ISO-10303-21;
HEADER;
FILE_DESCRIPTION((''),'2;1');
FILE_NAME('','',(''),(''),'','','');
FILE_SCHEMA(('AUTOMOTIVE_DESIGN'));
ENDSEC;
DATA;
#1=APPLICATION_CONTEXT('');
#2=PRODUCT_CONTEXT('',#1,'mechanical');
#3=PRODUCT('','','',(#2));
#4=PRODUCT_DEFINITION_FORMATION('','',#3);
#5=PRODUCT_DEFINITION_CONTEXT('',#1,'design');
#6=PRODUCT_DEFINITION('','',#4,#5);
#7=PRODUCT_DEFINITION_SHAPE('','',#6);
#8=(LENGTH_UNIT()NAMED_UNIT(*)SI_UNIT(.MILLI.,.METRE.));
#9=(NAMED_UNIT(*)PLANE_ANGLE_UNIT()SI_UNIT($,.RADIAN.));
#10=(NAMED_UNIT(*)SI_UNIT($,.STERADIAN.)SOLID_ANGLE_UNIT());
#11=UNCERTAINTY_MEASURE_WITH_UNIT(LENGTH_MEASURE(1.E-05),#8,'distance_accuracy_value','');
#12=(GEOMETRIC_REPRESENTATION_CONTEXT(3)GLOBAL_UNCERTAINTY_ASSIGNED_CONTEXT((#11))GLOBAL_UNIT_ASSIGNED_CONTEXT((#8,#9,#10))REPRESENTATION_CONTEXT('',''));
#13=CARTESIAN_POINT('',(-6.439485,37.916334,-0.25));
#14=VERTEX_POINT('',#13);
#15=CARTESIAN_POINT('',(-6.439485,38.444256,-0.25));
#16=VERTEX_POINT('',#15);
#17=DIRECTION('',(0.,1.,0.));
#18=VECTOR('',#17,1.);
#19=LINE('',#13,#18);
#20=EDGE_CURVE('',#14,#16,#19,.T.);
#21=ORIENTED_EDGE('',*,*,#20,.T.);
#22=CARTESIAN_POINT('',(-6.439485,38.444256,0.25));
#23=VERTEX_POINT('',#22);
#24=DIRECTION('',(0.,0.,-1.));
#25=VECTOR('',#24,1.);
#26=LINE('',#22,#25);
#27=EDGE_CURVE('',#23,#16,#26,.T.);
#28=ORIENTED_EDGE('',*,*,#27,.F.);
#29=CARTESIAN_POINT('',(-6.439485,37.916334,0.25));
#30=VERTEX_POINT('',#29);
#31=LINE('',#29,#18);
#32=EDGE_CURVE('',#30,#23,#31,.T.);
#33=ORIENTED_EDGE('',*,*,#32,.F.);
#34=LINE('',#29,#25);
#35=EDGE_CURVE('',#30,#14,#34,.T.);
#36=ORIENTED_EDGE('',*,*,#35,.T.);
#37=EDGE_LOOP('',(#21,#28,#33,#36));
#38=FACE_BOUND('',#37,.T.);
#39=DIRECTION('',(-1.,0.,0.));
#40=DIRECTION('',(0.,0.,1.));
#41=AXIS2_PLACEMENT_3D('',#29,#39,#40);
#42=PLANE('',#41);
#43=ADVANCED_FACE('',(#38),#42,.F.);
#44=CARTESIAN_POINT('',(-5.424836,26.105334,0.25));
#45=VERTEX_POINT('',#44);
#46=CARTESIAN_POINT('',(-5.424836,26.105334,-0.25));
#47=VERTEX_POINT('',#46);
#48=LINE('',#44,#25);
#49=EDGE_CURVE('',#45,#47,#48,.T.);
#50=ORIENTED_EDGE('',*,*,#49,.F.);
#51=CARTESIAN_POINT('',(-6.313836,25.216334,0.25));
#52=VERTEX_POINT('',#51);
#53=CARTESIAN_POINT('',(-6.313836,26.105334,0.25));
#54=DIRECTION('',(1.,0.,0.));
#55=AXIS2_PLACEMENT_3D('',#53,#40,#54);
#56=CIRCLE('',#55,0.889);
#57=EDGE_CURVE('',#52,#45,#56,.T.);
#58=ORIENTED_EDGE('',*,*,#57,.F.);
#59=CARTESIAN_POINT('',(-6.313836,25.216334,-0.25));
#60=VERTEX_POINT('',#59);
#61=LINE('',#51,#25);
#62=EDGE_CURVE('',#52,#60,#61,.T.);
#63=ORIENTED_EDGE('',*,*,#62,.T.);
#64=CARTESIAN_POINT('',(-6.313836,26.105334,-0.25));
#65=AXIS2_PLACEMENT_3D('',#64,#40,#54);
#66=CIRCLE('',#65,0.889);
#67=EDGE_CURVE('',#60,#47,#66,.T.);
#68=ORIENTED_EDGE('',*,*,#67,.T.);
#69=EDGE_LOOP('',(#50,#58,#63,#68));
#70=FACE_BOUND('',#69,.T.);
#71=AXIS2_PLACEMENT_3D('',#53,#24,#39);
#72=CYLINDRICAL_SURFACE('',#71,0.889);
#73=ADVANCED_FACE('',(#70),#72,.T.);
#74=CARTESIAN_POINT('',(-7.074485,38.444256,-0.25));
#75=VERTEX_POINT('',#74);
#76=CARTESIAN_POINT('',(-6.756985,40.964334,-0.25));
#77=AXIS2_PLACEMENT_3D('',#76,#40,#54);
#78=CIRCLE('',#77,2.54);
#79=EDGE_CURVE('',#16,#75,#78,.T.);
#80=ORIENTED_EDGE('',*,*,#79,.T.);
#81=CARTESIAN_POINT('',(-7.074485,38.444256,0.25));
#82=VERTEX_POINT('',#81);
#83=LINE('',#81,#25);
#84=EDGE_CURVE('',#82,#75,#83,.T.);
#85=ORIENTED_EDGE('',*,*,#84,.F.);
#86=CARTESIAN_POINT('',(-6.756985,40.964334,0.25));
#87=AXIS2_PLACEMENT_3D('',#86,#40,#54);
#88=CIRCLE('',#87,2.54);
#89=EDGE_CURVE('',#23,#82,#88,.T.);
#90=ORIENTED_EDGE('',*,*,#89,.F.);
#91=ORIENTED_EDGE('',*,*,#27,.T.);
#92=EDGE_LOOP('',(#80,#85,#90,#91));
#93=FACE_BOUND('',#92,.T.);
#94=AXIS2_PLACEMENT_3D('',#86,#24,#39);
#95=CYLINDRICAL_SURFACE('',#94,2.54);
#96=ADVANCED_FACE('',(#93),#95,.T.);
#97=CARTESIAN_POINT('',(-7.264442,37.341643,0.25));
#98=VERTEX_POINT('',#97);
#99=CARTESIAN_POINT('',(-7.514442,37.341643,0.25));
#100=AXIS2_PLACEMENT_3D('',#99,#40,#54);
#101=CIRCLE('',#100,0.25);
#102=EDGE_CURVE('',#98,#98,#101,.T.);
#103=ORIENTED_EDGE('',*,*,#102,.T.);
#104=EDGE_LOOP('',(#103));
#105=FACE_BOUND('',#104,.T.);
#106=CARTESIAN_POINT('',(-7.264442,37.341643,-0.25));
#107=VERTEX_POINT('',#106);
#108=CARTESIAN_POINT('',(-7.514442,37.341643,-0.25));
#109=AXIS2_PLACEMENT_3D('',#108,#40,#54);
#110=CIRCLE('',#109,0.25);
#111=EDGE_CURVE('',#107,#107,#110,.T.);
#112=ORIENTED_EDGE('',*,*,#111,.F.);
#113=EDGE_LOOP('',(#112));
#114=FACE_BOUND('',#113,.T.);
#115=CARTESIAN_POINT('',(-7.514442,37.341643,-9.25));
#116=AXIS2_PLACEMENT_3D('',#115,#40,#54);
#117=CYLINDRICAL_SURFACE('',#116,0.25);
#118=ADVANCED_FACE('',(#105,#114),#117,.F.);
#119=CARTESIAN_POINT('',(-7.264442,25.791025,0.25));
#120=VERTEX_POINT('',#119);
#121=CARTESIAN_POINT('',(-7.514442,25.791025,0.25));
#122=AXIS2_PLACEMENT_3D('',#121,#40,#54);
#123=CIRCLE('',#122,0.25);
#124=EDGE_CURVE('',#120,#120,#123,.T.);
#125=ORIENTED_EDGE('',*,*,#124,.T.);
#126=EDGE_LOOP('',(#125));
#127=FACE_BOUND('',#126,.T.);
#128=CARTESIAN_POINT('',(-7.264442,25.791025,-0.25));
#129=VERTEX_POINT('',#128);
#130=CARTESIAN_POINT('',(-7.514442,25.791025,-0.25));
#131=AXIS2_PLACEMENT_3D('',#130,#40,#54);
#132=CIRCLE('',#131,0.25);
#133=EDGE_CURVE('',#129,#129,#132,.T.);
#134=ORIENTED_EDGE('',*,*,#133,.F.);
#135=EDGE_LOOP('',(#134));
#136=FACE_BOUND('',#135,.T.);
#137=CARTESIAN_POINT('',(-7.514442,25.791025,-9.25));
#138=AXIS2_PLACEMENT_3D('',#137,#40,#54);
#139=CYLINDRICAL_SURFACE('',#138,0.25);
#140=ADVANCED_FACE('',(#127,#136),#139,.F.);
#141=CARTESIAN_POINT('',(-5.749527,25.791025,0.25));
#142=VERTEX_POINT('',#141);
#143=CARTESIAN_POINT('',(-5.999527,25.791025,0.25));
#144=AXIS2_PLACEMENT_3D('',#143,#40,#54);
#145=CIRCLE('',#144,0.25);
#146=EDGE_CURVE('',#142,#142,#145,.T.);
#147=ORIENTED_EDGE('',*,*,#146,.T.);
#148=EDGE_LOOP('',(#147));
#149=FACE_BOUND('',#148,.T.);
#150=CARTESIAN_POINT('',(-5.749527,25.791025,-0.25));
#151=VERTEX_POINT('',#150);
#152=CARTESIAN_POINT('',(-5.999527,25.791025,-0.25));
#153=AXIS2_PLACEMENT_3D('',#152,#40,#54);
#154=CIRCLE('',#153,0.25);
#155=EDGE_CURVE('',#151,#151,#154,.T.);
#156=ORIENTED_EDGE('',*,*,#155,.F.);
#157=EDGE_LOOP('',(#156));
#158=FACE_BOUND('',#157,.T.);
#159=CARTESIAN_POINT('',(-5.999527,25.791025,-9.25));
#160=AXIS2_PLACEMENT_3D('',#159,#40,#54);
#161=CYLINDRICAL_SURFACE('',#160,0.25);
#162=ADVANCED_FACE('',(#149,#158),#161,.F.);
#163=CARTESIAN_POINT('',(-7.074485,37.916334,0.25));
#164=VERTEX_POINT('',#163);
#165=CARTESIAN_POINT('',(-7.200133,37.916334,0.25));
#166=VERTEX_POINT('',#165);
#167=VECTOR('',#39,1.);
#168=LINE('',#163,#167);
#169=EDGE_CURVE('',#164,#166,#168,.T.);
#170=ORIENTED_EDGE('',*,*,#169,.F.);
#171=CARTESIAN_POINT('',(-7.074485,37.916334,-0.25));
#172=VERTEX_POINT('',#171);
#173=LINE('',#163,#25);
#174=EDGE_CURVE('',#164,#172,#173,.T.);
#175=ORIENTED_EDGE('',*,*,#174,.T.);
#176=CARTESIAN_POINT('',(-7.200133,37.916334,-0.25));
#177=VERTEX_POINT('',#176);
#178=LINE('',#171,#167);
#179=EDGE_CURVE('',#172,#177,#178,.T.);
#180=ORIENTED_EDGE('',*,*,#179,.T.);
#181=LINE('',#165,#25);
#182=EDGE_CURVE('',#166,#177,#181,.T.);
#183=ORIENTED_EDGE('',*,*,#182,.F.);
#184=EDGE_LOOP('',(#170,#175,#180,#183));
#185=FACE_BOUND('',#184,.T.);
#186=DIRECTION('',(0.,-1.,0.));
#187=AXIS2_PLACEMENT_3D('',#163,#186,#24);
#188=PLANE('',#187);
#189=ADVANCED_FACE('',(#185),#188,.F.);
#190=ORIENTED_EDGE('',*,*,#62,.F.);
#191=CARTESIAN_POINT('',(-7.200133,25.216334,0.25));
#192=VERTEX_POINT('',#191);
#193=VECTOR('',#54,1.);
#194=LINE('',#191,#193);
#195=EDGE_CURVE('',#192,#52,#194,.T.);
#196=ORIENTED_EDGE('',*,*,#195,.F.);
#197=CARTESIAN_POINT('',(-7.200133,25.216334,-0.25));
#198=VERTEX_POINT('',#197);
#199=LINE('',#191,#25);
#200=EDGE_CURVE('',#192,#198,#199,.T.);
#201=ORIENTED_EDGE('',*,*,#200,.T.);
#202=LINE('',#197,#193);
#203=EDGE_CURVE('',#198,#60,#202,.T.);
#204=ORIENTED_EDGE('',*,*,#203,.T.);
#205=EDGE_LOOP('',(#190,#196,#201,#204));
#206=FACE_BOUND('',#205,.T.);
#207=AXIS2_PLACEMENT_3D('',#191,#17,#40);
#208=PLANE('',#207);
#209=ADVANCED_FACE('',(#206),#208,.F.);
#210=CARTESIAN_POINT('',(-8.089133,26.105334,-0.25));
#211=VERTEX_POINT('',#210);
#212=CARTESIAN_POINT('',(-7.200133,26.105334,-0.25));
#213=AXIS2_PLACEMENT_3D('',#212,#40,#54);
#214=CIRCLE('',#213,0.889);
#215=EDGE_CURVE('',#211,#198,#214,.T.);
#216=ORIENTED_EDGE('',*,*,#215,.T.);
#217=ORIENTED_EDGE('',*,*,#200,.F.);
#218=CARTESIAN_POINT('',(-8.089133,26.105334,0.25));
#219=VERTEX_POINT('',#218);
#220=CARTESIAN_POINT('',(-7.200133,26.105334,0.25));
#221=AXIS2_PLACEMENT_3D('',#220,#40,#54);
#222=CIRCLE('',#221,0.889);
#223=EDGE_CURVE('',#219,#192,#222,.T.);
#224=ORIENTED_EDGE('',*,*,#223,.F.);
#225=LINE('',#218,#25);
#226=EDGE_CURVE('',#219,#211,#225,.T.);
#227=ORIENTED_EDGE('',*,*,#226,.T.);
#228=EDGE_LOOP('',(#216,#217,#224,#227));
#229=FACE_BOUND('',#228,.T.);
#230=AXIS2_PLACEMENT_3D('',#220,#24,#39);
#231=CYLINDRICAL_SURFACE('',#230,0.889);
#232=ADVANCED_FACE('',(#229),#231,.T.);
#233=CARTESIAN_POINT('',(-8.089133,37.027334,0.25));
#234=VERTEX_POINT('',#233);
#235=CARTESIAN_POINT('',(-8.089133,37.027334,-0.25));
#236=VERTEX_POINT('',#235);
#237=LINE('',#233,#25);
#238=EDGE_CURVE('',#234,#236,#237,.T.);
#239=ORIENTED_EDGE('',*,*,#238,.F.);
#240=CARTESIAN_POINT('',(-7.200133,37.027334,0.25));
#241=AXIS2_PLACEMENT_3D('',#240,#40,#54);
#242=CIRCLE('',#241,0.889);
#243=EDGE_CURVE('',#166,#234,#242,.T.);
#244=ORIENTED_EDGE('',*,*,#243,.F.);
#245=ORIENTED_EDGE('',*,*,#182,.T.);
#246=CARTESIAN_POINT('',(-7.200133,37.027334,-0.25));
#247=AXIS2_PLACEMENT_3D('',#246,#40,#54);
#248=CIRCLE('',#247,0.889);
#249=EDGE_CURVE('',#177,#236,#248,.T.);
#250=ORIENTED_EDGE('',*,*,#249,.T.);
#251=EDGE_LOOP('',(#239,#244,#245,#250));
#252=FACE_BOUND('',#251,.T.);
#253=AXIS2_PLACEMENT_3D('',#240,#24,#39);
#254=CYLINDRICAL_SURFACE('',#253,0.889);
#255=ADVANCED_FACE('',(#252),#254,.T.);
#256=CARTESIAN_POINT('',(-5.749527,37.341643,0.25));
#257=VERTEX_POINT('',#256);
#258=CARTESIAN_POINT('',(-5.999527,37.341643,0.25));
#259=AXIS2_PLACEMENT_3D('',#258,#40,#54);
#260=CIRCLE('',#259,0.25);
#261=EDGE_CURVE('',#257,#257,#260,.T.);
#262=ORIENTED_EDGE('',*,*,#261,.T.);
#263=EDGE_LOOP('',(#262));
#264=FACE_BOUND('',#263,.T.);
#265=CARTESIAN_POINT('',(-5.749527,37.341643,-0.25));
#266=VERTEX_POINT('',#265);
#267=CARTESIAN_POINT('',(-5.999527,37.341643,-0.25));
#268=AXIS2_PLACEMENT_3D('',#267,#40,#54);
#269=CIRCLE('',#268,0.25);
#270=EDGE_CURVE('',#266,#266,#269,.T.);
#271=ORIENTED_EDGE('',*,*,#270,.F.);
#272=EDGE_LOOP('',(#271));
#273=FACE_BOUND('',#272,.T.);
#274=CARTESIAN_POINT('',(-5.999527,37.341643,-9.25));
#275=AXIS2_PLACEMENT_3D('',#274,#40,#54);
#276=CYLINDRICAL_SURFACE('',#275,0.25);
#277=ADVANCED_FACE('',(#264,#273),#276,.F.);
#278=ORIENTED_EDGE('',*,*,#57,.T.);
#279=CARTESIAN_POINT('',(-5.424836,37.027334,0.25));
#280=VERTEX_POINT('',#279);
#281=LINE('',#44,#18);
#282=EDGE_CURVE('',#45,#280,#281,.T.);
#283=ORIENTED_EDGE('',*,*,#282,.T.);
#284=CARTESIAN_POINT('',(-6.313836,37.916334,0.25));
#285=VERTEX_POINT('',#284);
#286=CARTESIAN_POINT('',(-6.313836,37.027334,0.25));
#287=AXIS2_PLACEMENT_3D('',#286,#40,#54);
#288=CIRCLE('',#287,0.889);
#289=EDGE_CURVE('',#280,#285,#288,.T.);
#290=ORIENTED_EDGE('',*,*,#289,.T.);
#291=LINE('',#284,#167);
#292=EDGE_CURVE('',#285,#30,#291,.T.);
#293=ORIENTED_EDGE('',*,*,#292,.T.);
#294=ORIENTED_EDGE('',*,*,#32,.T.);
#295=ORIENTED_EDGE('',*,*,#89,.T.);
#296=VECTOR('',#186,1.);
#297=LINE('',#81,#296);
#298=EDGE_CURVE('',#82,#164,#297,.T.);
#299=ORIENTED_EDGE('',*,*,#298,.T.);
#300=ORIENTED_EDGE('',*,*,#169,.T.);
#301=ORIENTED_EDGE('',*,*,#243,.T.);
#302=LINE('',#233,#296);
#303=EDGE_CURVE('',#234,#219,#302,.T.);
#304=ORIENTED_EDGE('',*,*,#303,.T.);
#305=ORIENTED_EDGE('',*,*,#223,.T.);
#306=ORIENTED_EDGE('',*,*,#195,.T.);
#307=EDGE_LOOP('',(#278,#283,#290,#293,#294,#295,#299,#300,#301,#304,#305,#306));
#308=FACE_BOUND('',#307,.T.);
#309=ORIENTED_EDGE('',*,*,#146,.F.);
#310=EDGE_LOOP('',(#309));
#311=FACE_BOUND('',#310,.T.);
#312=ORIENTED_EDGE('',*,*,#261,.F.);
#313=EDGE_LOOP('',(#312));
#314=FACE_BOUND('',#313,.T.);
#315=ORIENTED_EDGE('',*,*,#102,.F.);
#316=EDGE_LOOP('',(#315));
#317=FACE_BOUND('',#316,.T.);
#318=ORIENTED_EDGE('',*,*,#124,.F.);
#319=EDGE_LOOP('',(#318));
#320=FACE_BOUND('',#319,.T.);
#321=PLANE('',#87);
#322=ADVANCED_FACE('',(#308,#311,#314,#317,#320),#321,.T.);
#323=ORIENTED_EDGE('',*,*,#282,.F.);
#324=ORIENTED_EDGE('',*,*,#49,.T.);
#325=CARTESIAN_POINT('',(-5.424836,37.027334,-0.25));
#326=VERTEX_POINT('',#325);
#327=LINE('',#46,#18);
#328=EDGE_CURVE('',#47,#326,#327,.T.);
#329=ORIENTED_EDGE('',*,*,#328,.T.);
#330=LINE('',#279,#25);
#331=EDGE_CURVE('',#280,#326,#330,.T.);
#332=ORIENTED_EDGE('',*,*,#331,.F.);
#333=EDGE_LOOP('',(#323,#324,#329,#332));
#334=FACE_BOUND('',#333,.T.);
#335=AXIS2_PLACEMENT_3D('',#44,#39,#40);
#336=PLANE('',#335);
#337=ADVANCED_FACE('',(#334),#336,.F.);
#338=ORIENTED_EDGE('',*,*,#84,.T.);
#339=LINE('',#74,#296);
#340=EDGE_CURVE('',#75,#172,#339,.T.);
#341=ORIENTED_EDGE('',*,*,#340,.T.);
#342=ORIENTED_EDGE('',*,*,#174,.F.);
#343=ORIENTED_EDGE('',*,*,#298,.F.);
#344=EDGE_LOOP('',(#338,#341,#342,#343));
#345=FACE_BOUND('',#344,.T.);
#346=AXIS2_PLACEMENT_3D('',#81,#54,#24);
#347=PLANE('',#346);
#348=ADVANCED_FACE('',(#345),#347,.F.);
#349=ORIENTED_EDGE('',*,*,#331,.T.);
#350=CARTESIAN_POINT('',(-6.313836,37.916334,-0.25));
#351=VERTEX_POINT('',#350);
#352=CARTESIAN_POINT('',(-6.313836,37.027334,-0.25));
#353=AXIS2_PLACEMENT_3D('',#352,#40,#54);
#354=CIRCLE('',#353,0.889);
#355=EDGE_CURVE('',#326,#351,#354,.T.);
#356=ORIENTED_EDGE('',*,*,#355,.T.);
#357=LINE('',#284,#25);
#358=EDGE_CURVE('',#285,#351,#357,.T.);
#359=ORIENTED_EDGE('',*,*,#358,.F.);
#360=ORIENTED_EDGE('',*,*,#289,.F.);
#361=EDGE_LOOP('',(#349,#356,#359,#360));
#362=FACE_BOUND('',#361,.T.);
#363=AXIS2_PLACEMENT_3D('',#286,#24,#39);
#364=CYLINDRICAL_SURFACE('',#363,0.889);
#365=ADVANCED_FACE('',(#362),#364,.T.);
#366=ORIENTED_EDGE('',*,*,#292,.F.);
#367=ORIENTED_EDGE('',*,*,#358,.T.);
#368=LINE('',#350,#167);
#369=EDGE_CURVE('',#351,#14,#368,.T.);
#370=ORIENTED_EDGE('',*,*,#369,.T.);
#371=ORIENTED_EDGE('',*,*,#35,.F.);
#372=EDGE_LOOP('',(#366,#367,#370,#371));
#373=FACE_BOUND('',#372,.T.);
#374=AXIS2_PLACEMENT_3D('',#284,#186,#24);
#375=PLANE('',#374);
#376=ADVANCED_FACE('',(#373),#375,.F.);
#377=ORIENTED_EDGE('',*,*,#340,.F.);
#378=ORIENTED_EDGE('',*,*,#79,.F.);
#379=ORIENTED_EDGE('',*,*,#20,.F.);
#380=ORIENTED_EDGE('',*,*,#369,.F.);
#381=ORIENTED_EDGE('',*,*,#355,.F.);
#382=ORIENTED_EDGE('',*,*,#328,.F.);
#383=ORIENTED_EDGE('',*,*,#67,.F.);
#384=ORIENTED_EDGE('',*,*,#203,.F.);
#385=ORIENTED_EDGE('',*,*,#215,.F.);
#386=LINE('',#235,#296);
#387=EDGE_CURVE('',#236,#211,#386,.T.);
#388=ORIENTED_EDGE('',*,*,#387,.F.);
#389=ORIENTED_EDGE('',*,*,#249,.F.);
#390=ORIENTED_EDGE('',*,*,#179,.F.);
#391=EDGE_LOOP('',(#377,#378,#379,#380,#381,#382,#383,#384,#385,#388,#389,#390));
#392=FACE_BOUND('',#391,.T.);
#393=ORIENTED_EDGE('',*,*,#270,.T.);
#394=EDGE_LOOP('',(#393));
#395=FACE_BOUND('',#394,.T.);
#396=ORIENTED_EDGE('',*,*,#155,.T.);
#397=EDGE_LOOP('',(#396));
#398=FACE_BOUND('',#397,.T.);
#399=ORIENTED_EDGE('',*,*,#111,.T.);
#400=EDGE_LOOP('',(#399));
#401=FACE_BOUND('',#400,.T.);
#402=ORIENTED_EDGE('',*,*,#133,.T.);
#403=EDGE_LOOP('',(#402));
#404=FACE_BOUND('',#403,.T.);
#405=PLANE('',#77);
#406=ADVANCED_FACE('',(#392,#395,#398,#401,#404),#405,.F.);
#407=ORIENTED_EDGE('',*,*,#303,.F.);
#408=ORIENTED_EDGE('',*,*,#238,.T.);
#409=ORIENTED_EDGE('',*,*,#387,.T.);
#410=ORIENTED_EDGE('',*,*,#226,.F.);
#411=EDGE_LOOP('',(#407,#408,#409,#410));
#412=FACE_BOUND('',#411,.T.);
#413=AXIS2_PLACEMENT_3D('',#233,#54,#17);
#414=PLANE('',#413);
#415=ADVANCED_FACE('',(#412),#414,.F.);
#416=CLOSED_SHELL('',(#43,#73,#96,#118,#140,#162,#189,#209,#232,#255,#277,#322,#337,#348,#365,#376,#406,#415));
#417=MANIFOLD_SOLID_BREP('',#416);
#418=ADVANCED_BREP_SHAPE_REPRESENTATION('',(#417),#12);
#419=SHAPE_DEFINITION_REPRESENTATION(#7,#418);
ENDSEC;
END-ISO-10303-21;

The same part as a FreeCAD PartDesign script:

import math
import FreeCAD as App
import Part
import Sketcher

V = App.Vector
Q = App.Units.Quantity

doc = App.newDocument("Part")
body = doc.addObject("PartDesign::Body", "Body")

# Sketch on XY plane
sketch1 = doc.addObject("Sketcher::SketchObject", "Sketch")
body.addObject(sketch1)
sketch1.AttachmentSupport = (doc.XY_Plane, [""])
sketch1.MapMode = "FlatFace"
sketch1.addGeometry([
    Part.LineSegment(V(-7.07, 38.44, 0), V(-7.07, 37.92, 0)),  # 0
    Part.LineSegment(V(-7.07, 37.92, 0), V(-7.2, 37.92, 0)),  # 1
    Part.ArcOfCircle(Part.Circle(V(-7.2, 37.03, 0), V(0, 0, 1), 0.89), math.radians(90), math.radians(180)),  # 2
    Part.LineSegment(V(-8.09, 37.03, 0), V(-8.09, 26.11, 0)),  # 3
    Part.ArcOfCircle(Part.Circle(V(-7.2, 26.11, 0), V(0, 0, 1), 0.89), math.radians(180), math.radians(270)),  # 4
    Part.LineSegment(V(-7.2, 25.22, 0), V(-6.31, 25.22, 0)),  # 5
    Part.ArcOfCircle(Part.Circle(V(-6.31, 26.11, 0), V(0, 0, 1), 0.89), math.radians(-90), math.radians(0)),  # 6
    Part.LineSegment(V(-5.42, 26.11, 0), V(-5.42, 37.03, 0)),  # 7
    Part.ArcOfCircle(Part.Circle(V(-6.31, 37.03, 0), V(0, 0, 1), 0.89), math.radians(0), math.radians(90)),  # 8
    Part.LineSegment(V(-6.31, 37.92, 0), V(-6.44, 37.92, 0)),  # 9
    Part.LineSegment(V(-6.44, 37.92, 0), V(-6.44, 38.44, 0)),  # 10
    Part.ArcOfCircle(Part.Circle(V(-6.76, 40.96, 0), V(0, 0, 1), 2.54), math.radians(-83), math.radians(263)),  # 11
], False)
sketch1.addConstraint([
    Sketcher.Constraint("Coincident", 0, 2, 1, 1),
    Sketcher.Constraint("Tangent", 1, 2, 2, 1),
    Sketcher.Constraint("Tangent", 2, 2, 3, 1),
    Sketcher.Constraint("Tangent", 3, 2, 4, 1),
    Sketcher.Constraint("Tangent", 4, 2, 5, 1),
    Sketcher.Constraint("Tangent", 5, 2, 6, 1),
    Sketcher.Constraint("Tangent", 6, 2, 7, 1),
    Sketcher.Constraint("Tangent", 7, 2, 8, 1),
    Sketcher.Constraint("Tangent", 8, 2, 9, 1),
    Sketcher.Constraint("Coincident", 9, 2, 10, 1),
    Sketcher.Constraint("Coincident", 10, 2, 11, 1),
    Sketcher.Constraint("Coincident", 11, 2, 0, 1),
    Sketcher.Constraint("Vertical", 0),
    Sketcher.Constraint("Horizontal", 1),
    Sketcher.Constraint("Vertical", 3),
    Sketcher.Constraint("Horizontal", 5),
    Sketcher.Constraint("Vertical", 7),
    Sketcher.Constraint("Horizontal", 9),
    Sketcher.Constraint("Vertical", 10),
    Sketcher.Constraint("Equal", 2, 4),
    Sketcher.Constraint("Equal", 4, 6),
    Sketcher.Constraint("Equal", 6, 8),
    Sketcher.Constraint("Horizontal", 2, 3, 8, 3),
    Sketcher.Constraint("Horizontal", 10, 2, 11, 2),
    Sketcher.Constraint("Equal", 1, 9),
    Sketcher.Constraint("Radius", 11, Q("0.1 in")),
    Sketcher.Constraint("Radius", 2, Q("0.035 in")),
    Sketcher.Constraint("DistanceY", 3, 2, 3, 1, Q("0.43 in")),
    Sketcher.Constraint("DistanceY", 0, 2, 11, 3, Q("0.12 in")),
    Sketcher.Constraint("DistanceX", 0, 2, 9, 2, Q("0.025 in")),
    Sketcher.Constraint("DistanceX", 1, 2, 1, 1, Q("0.125648 mm")),
    Sketcher.Constraint("DistanceX", 2, 3, -1, 1, Q("7.200133 mm")),
    Sketcher.Constraint("DistanceY", -1, 1, 2, 3, Q("37.027334 mm")),
])
pad1 = doc.addObject("PartDesign::Pad", "Pad")
body.addObject(pad1)
pad1.Profile = sketch1
pad1.Length = 0.5
pad1.Midplane = True

# Sketch on XY plane
sketch2 = doc.addObject("Sketcher::SketchObject", "Sketch001")
body.addObject(sketch2)
sketch2.AttachmentSupport = (doc.XY_Plane, [""])
sketch2.MapMode = "FlatFace"
sketch2.AttachmentOffset = App.Placement(V(0, 0, 0.25), App.Rotation())
sketch2.addGeometry([
    Part.Circle(V(-7.51, 25.79, 0), V(0, 0, 1), 0.25),
    Part.Circle(V(-6, 25.79, 0), V(0, 0, 1), 0.25),
    Part.Circle(V(-7.51, 37.34, 0), V(0, 0, 1), 0.25),
    Part.Circle(V(-6, 37.34, 0), V(0, 0, 1), 0.25),
], False)
sketch2.addConstraint([
    Sketcher.Constraint("Equal", 0, 1),
    Sketcher.Constraint("Equal", 1, 2),
    Sketcher.Constraint("Equal", 2, 3),
    Sketcher.Constraint("Horizontal", 0, 3, 1, 3),
    Sketcher.Constraint("Horizontal", 2, 3, 3, 3),
    Sketcher.Constraint("Vertical", 0, 3, 2, 3),
    Sketcher.Constraint("Vertical", 1, 3, 3, 3),
    Sketcher.Constraint("Diameter", 0, Q("0.5 mm")),
    Sketcher.Constraint("DistanceX", 0, 3, -1, 1, Q("7.514442 mm")),
    Sketcher.Constraint("DistanceY", -1, 1, 0, 3, Q("25.791025 mm")),
    Sketcher.Constraint("DistanceX", 1, 3, -1, 1, Q("5.999527 mm")),
    Sketcher.Constraint("DistanceY", -1, 1, 2, 3, Q("37.341643 mm")),
])
pocket1 = doc.addObject("PartDesign::Pocket", "Pocket")
body.addObject(pocket1)
pocket1.Profile = sketch2
pocket1.Length = 9.5

doc.recompute()
